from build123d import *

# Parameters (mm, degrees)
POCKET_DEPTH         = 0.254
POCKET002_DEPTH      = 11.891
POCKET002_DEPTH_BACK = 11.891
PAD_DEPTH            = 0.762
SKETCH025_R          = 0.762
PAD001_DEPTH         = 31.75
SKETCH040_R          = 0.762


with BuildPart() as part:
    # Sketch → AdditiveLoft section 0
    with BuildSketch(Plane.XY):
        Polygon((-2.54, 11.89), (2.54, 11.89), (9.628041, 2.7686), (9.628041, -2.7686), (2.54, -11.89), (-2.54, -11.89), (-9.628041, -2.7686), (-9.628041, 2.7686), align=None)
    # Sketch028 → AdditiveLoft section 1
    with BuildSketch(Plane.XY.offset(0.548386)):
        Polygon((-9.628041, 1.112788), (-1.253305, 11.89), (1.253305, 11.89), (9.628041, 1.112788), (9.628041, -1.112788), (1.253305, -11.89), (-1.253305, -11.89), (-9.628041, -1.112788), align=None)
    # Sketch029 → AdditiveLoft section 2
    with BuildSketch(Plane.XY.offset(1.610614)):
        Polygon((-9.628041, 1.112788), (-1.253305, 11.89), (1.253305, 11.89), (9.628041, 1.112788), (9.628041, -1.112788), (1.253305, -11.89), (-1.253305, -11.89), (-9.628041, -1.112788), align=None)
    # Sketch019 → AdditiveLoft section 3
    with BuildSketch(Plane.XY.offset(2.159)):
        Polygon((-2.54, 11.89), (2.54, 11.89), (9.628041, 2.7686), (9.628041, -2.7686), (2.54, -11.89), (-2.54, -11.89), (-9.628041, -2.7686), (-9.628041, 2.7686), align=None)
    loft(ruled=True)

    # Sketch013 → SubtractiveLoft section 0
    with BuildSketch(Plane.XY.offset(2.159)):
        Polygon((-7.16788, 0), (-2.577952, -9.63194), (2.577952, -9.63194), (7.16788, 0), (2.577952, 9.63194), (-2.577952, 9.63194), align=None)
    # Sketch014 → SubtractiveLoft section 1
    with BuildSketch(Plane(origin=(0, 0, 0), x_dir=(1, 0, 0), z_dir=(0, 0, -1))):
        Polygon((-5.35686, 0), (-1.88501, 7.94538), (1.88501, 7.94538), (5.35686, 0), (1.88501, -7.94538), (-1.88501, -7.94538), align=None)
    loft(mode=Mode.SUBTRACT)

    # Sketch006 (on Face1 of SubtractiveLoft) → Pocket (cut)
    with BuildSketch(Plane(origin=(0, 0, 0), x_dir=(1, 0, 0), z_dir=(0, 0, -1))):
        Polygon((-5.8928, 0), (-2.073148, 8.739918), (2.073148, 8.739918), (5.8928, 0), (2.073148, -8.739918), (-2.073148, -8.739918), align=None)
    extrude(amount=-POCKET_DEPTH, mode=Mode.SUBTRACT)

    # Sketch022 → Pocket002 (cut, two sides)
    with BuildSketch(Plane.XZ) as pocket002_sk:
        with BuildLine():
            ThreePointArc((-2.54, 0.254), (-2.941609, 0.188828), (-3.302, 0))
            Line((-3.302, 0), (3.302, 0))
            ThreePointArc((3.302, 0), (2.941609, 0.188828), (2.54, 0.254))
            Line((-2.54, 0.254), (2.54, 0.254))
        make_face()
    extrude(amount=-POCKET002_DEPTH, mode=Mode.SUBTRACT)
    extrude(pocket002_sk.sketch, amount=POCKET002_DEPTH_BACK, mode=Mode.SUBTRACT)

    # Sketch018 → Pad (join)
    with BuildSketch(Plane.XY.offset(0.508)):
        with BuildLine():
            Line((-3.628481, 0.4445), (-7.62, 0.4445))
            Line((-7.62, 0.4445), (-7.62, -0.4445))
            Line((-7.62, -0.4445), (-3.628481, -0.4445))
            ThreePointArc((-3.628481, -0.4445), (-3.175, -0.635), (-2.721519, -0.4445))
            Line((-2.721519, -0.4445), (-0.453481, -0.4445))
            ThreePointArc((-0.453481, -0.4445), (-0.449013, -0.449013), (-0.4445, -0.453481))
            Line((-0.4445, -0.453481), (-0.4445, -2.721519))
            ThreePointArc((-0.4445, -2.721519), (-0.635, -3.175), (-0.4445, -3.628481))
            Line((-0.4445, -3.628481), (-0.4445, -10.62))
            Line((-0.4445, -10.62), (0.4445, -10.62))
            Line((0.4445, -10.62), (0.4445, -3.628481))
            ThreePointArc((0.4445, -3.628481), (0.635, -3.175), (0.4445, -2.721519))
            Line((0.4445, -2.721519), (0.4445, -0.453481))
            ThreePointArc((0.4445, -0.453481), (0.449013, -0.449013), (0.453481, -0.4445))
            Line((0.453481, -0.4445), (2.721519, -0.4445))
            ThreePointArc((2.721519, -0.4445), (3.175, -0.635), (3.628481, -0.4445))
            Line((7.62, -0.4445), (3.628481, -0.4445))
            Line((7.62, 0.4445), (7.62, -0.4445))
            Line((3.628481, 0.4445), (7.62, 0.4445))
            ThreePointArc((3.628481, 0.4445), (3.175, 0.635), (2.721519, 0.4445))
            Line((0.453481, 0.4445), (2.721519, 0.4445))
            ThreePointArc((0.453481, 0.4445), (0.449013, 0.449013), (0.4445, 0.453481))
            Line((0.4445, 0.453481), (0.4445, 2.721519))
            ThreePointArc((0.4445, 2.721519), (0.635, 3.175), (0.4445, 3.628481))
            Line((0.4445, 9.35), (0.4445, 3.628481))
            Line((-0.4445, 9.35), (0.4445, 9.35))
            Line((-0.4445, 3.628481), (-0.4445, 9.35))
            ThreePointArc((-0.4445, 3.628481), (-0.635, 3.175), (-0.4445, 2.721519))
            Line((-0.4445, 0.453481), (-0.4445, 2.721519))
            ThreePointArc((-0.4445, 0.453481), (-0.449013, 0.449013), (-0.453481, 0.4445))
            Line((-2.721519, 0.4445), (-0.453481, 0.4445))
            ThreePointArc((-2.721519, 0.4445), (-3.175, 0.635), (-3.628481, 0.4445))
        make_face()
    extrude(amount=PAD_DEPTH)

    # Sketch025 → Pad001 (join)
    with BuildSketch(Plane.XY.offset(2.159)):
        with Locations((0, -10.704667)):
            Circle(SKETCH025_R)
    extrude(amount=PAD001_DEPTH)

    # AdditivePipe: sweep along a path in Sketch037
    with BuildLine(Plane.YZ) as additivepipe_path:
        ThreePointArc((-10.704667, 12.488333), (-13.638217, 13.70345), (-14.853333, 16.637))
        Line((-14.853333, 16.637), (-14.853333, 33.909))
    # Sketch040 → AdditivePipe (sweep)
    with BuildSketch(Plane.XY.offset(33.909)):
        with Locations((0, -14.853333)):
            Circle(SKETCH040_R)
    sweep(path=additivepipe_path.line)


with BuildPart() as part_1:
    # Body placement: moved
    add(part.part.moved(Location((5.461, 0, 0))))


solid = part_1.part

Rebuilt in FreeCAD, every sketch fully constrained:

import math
import FreeCAD as App
import Part
import Sketcher
Q = App.Units.Quantity

doc = App.newDocument("Part")
body = doc.addObject("PartDesign::Body", "Body")

sketch1 = body.newObject("Sketcher::SketchObject", "Sketch")
sketch1.AttachmentSupport = (doc.getObject("XY_Plane"), [""])
sketch1.MapMode = "FlatFace"
sketch1.addGeometry([
    Part.LineSegment(App.Vector(3, 12, 0), App.Vector(-3, 12, 0)),
    Part.LineSegment(App.Vector(-3, 12, 0), App.Vector(-10, 3, 0)),
    Part.LineSegment(App.Vector(-10, 3, 0), App.Vector(-10, -3, 0)),
    Part.LineSegment(App.Vector(-10, -3, 0), App.Vector(-3, -12, 0)),
    Part.LineSegment(App.Vector(-3, -12, 0), App.Vector(3, -12, 0)),
    Part.LineSegment(App.Vector(3, -12, 0), App.Vector(10, -3, 0)),
    Part.LineSegment(App.Vector(10, -3, 0), App.Vector(10, 3, 0)),
    Part.LineSegment(App.Vector(10, 3, 0), App.Vector(3, 12, 0)),
], False)
sketch1.addConstraint([
    Sketcher.Constraint("Coincident", 0, 2, 1, 1),
    Sketcher.Constraint("Coincident", 1, 2, 2, 1),
    Sketcher.Constraint("Coincident", 2, 2, 3, 1),
    Sketcher.Constraint("Coincident", 3, 2, 4, 1),
    Sketcher.Constraint("Coincident", 4, 2, 5, 1),
    Sketcher.Constraint("Coincident", 5, 2, 6, 1),
    Sketcher.Constraint("Coincident", 6, 2, 7, 1),
    Sketcher.Constraint("Coincident", 7, 2, 0, 1),
    Sketcher.Constraint("Horizontal", 0),
    Sketcher.Constraint("Vertical", 2),
    Sketcher.Constraint("Horizontal", 4),
    Sketcher.Constraint("Vertical", 6),
    Sketcher.Constraint("Symmetric", 0, 2, 4, 2, -1, 1),
    Sketcher.Constraint("Symmetric", 1, 2, 5, 2, -1, 1),
    Sketcher.Constraint("Parallel", 3, 7),
    Sketcher.Constraint("Horizontal", 2, 2, 5, 2),
    Sketcher.Constraint("Horizontal", 1, 2, 6, 2),
    Sketcher.Constraint("Vertical", 0, 2, 3, 2),
    Sketcher.Constraint("DistanceX", 0, 2, 0, 1, Q("0.2 in")),
    Sketcher.Constraint("DistanceY", 2, 2, 2, 1, Q("0.218 in")),
    Sketcher.Constraint("Angle", 1, Q("-127.85 deg")),
    Sketcher.Constraint("DistanceY", -1, 1, 0, 2, Q("11.89 mm")),
])

sketch2 = body.newObject("Sketcher::SketchObject", "Sketch001")
sketch2.AttachmentSupport = (doc.getObject("XY_Plane"), [""])
sketch2.MapMode = "FlatFace"
sketch2.AttachmentOffset = App.Placement(App.Vector(0, 0, 0.548386), App.Rotation())
sketch2.addGeometry([
    Part.LineSegment(App.Vector(-1.3, 11.9, 0), App.Vector(-9.6, 1.1, 0)),
    Part.LineSegment(App.Vector(-9.6, 1.1, 0), App.Vector(-9.6, -1.1, 0)),
    Part.LineSegment(App.Vector(-9.6, -1.1, 0), App.Vector(-1.3, -11.9, 0)),
    Part.LineSegment(App.Vector(-1.3, -11.9, 0), App.Vector(1.3, -11.9, 0)),
    Part.LineSegment(App.Vector(1.3, -11.9, 0), App.Vector(9.6, -1.1, 0)),
    Part.LineSegment(App.Vector(9.6, -1.1, 0), App.Vector(9.6, 1.1, 0)),
    Part.LineSegment(App.Vector(9.6, 1.1, 0), App.Vector(1.3, 11.9, 0)),
    Part.LineSegment(App.Vector(1.3, 11.9, 0), App.Vector(-1.3, 11.9, 0)),
], False)
sketch2.addConstraint([
    Sketcher.Constraint("Coincident", 0, 2, 1, 1),
    Sketcher.Constraint("Coincident", 1, 2, 2, 1),
    Sketcher.Constraint("Coincident", 2, 2, 3, 1),
    Sketcher.Constraint("Coincident", 3, 2, 4, 1),
    Sketcher.Constraint("Coincident", 4, 2, 5, 1),
    Sketcher.Constraint("Coincident", 5, 2, 6, 1),
    Sketcher.Constraint("Coincident", 6, 2, 7, 1),
    Sketcher.Constraint("Coincident", 7, 2, 0, 1),
    Sketcher.Constraint("Vertical", 1),
    Sketcher.Constraint("Horizontal", 3),
    Sketcher.Constraint("Vertical", 5),
    Sketcher.Constraint("Horizontal", 7),
    Sketcher.Constraint("Symmetric", 0, 2, 4, 2, -1, 1),
    Sketcher.Constraint("Symmetric", 2, 2, 6, 2, -1, 1),
    Sketcher.Constraint("Parallel", 0, 4),
    Sketcher.Constraint("Parallel", 2, 6),
    Sketcher.Constraint("Horizontal", 1, 2, 4, 2),
    Sketcher.Constraint("Vertical", 3, 2, 6, 2),
    Sketcher.Constraint("Angle", 0, Q("-127.849999 deg")),
    Sketcher.Constraint("DistanceX", 3, 1, 3, 2, Q("2.50661 mm")),
    Sketcher.Constraint("DistanceY", 2, 2, -1, 1, Q("11.89 mm")),
    Sketcher.Constraint("Distance", 0, Q("13.648608 mm")),
])

sketch3 = body.newObject("Sketcher::SketchObject", "Sketch002")
sketch3.AttachmentSupport = (doc.getObject("XY_Plane"), [""])
sketch3.MapMode = "FlatFace"
sketch3.AttachmentOffset = App.Placement(App.Vector(0, 0, 1.610614), App.Rotation())
sketch3.addGeometry([
    Part.LineSegment(App.Vector(-1.3, 11.9, 0), App.Vector(-9.6, 1.1, 0)),
    Part.LineSegment(App.Vector(-9.6, 1.1, 0), App.Vector(-9.6, -1.1, 0)),
    Part.LineSegment(App.Vector(-9.6, -1.1, 0), App.Vector(-1.3, -11.9, 0)),
    Part.LineSegment(App.Vector(-1.3, -11.9, 0), App.Vector(1.3, -11.9, 0)),
    Part.LineSegment(App.Vector(1.3, -11.9, 0), App.Vector(9.6, -1.1, 0)),
    Part.LineSegment(App.Vector(9.6, -1.1, 0), App.Vector(9.6, 1.1, 0)),
    Part.LineSegment(App.Vector(9.6, 1.1, 0), App.Vector(1.3, 11.9, 0)),
    Part.LineSegment(App.Vector(1.3, 11.9, 0), App.Vector(-1.3, 11.9, 0)),
], False)
sketch3.addConstraint([
    Sketcher.Constraint("Coincident", 0, 2, 1, 1),
    Sketcher.Constraint("Coincident", 1, 2, 2, 1),
    Sketcher.Constraint("Coincident", 2, 2, 3, 1),
    Sketcher.Constraint("Coincident", 3, 2, 4, 1),
    Sketcher.Constraint("Coincident", 4, 2, 5, 1),
    Sketcher.Constraint("Coincident", 5, 2, 6, 1),
    Sketcher.Constraint("Coincident", 6, 2, 7, 1),
    Sketcher.Constraint("Coincident", 7, 2, 0, 1),
    Sketcher.Constraint("Vertical", 1),
    Sketcher.Constraint("Horizontal", 3),
    Sketcher.Constraint("Vertical", 5),
    Sketcher.Constraint("Horizontal", 7),
    Sketcher.Constraint("Symmetric", 0, 2, 4, 2, -1, 1),
    Sketcher.Constraint("Symmetric", 2, 2, 6, 2, -1, 1),
    Sketcher.Constraint("Parallel", 0, 4),
    Sketcher.Constraint("Parallel", 2, 6),
    Sketcher.Constraint("Horizontal", 1, 2, 4, 2),
    Sketcher.Constraint("Vertical", 3, 2, 6, 2),
    Sketcher.Constraint("Angle", 0, Q("-127.849999 deg")),
    Sketcher.Constraint("DistanceX", 3, 1, 3, 2, Q("2.50661 mm")),
    Sketcher.Constraint("DistanceY", 2, 2, -1, 1, Q("11.89 mm")),
    Sketcher.Constraint("Distance", 0, Q("13.648608 mm")),
])

sketch4 = body.newObject("Sketcher::SketchObject", "Sketch003")
sketch4.AttachmentSupport = (doc.getObject("XY_Plane"), [""])
sketch4.MapMode = "FlatFace"
sketch4.AttachmentOffset = App.Placement(App.Vector(0, 0, 0.085 * 25.4), App.Rotation())
sketch4.addGeometry([
    Part.LineSegment(App.Vector(3, 12, 0), App.Vector(-3, 12, 0)),
    Part.LineSegment(App.Vector(-3, 12, 0), App.Vector(-10, 3, 0)),
    Part.LineSegment(App.Vector(-10, 3, 0), App.Vector(-10, -3, 0)),
    Part.LineSegment(App.Vector(-10, -3, 0), App.Vector(-3, -12, 0)),
    Part.LineSegment(App.Vector(-3, -12, 0), App.Vector(3, -12, 0)),
    Part.LineSegment(App.Vector(3, -12, 0), App.Vector(10, -3, 0)),
    Part.LineSegment(App.Vector(10, -3, 0), App.Vector(10, 3, 0)),
    Part.LineSegment(App.Vector(10, 3, 0), App.Vector(3, 12, 0)),
], False)
sketch4.addConstraint([
    Sketcher.Constraint("Coincident", 0, 2, 1, 1),
    Sketcher.Constraint("Coincident", 1, 2, 2, 1),
    Sketcher.Constraint("Coincident", 2, 2, 3, 1),
    Sketcher.Constraint("Coincident", 3, 2, 4, 1),
    Sketcher.Constraint("Coincident", 4, 2, 5, 1),
    Sketcher.Constraint("Coincident", 5, 2, 6, 1),
    Sketcher.Constraint("Coincident", 6, 2, 7, 1),
    Sketcher.Constraint("Coincident", 7, 2, 0, 1),
    Sketcher.Constraint("Horizontal", 0),
    Sketcher.Constraint("Vertical", 2),
    Sketcher.Constraint("Horizontal", 4),
    Sketcher.Constraint("Vertical", 6),
    Sketcher.Constraint("Symmetric", 0, 2, 4, 2, -1, 1),
    Sketcher.Constraint("Symmetric", 1, 2, 5, 2, -1, 1),
    Sketcher.Constraint("Parallel", 3, 7),
    Sketcher.Constraint("Horizontal", 2, 2, 5, 2),
    Sketcher.Constraint("Horizontal", 1, 2, 6, 2),
    Sketcher.Constraint("Vertical", 0, 2, 3, 2),
    Sketcher.Constraint("DistanceX", 0, 2, 0, 1, Q("0.2 in")),
    Sketcher.Constraint("DistanceY", 2, 2, 2, 1, Q("0.218 in")),
    Sketcher.Constraint("Angle", 1, Q("-127.85 deg")),
    Sketcher.Constraint("DistanceY", -1, 1, 0, 2, Q("11.89 mm")),
])

additiveloft = body.newObject("PartDesign::AdditiveLoft", "AdditiveLoft")
additiveloft.Profile = sketch1
additiveloft.Sections = [sketch2, sketch3, sketch4]
additiveloft.Ruled = True

sketch5 = body.newObject("Sketcher::SketchObject", "Sketch004")
sketch5.AttachmentSupport = (doc.getObject("XY_Plane"), [""])
sketch5.MapMode = "FlatFace"
sketch5.AttachmentOffset = App.Placement(App.Vector(0, 0, 0.085 * 25.4), App.Rotation())
sketch5.addGeometry([
    Part.LineSegment(App.Vector(-7, 0, 0), App.Vector(-3, -10, 0)),
    Part.LineSegment(App.Vector(-3, -10, 0), App.Vector(3, -10, 0)),
    Part.LineSegment(App.Vector(3, -10, 0), App.Vector(7, 0, 0)),
    Part.LineSegment(App.Vector(7, 0, 0), App.Vector(3, 10, 0)),
    Part.LineSegment(App.Vector(3, 10, 0), App.Vector(-3, 10, 0)),
    Part.LineSegment(App.Vector(-3, 10, 0), App.Vector(-7, 0, 0)),
], False)
sketch5.addConstraint([
    Sketcher.Constraint("Coincident", 0, 2, 1, 1),
    Sketcher.Constraint("Coincident", 1, 2, 2, 1),
    Sketcher.Constraint("Coincident", 2, 2, 3, 1),
    Sketcher.Constraint("Coincident", 3, 2, 4, 1),
    Sketcher.Constraint("Coincident", 4, 2, 5, 1),
    Sketcher.Constraint("Coincident", 5, 2, 0, 1),
    Sketcher.Constraint("Horizontal", 1),
    Sketcher.Constraint("Horizontal", 4),
    Sketcher.Constraint("Symmetric", 0, 2, 3, 2, -1, 1),
    Sketcher.Constraint("Symmetric", 2, 2, 5, 2, -1, 1),
    Sketcher.Constraint("PointOnObject", 2, 2, -1),
    Sketcher.Constraint("Parallel", 2, 5),
    Sketcher.Constraint("Vertical", 1, 2, 3, 2),
    Sketcher.Constraint("DistanceX", -1, 1, 2, 2, Q("0.2822 in")),
    Sketcher.Constraint("DistanceX", 1, 1, 1, 2, Q("5.155904 mm")),
    Sketcher.Constraint("DistanceY", 0, 2, -1, 1, Q("9.63194 mm")),
])

sketch6 = body.newObject("Sketcher::SketchObject", "Sketch005")
sketch6.AttachmentSupport = (doc.getObject("XY_Plane"), [""])
sketch6.MapMode = "FlatFace"
sketch6.addGeometry([
    Part.LineSegment(App.Vector(-1.9, -7.9, 0), App.Vector(-5.4, 0, 0)),
    Part.LineSegment(App.Vector(-5.4, 0, 0), App.Vector(-1.9, 7.9, 0)),
    Part.LineSegment(App.Vector(-1.9, 7.9, 0), App.Vector(1.9, 7.9, 0)),
    Part.LineSegment(App.Vector(1.9, 7.9, 0), App.Vector(5.4, 0, 0)),
    Part.LineSegment(App.Vector(5.4, 0, 0), App.Vector(1.9, -7.9, 0)),
    Part.LineSegment(App.Vector(1.9, -7.9, 0), App.Vector(-1.9, -7.9, 0)),
], False)
sketch6.addConstraint([
    Sketcher.Constraint("Coincident", 0, 2, 1, 1),
    Sketcher.Constraint("Coincident", 1, 2, 2, 1),
    Sketcher.Constraint("Coincident", 2, 2, 3, 1),
    Sketcher.Constraint("Coincident", 3, 2, 4, 1),
    Sketcher.Constraint("Coincident", 4, 2, 5, 1),
    Sketcher.Constraint("Coincident", 5, 2, 0, 1),
    Sketcher.Constraint("Horizontal", 2),
    Sketcher.Constraint("Horizontal", 5),
    Sketcher.Constraint("Symmetric", 0, 2, 3, 2, -1, 1),
    Sketcher.Constraint("Symmetric", 1, 2, 4, 2, -1, 1),
    Sketcher.Constraint("PointOnObject", 0, 2, -1),
    Sketcher.Constraint("Parallel", 0, 3),
    Sketcher.Constraint("Vertical", 2, 2, 4, 2),
    Sketcher.Constraint("DistanceX", 0, 2, -1, 1, Q("0.2109 in")),
    Sketcher.Constraint("Distance", 0, Q("8.670802 mm")),
    Sketcher.Constraint("DistanceX", 2, 1, 2, 2, Q("3.77002 mm")),
])

subtractiveloft = body.newObject("PartDesign::SubtractiveLoft", "SubtractiveLoft")
subtractiveloft.Profile = sketch5
subtractiveloft.Sections = [sketch6]

sketch7 = body.newObject("Sketcher::SketchObject", "Sketch006")
sketch7.AttachmentSupport = (doc.getObject("XY_Plane"), [""])
sketch7.MapMode = "FlatFace"
sketch7.addGeometry([
    Part.LineSegment(App.Vector(-2.1, -8.7, 0), App.Vector(-5.9, 0, 0)),
    Part.LineSegment(App.Vector(-5.9, 0, 0), App.Vector(-2.1, 8.7, 0)),
    Part.LineSegment(App.Vector(-2.1, 8.7, 0), App.Vector(2.1, 8.7, 0)),
    Part.LineSegment(App.Vector(2.1, 8.7, 0), App.Vector(5.9, 0, 0)),
    Part.LineSegment(App.Vector(5.9, 0, 0), App.Vector(2.1, -8.7, 0)),
    Part.LineSegment(App.Vector(2.1, -8.7, 0), App.Vector(-2.1, -8.7, 0)),
], False)
sketch7.addConstraint([
    Sketcher.Constraint("Coincident", 0, 2, 1, 1),
    Sketcher.Constraint("Coincident", 1, 2, 2, 1),
    Sketcher.Constraint("Coincident", 2, 2, 3, 1),
    Sketcher.Constraint("Coincident", 3, 2, 4, 1),
    Sketcher.Constraint("Coincident", 4, 2, 5, 1),
    Sketcher.Constraint("Coincident", 5, 2, 0, 1),
    Sketcher.Constraint("Horizontal", 2),
    Sketcher.Constraint("Horizontal", 5),
    Sketcher.Constraint("Symmetric", 0, 2, 3, 2, -1, 1),
    Sketcher.Constraint("Symmetric", 1, 2, 4, 2, -1, 1),
    Sketcher.Constraint("PointOnObject", 0, 2, -1),
    Sketcher.Constraint("Parallel", 0, 3),
    Sketcher.Constraint("Vertical", 2, 2, 4, 2),
    Sketcher.Constraint("DistanceX", 0, 2, -1, 1, Q("0.232 in")),
    Sketcher.Constraint("Distance", 0, Q("9.538129 mm")),
    Sketcher.Constraint("DistanceX", 2, 1, 2, 2, Q("4.146296 mm")),
])
pocket1 = body.newObject("PartDesign::Pocket", "Pocket")
pocket1.Profile = sketch7
pocket1.Length = Q("0.01 in")
pocket1.Reversed = True

sketch8 = body.newObject("Sketcher::SketchObject", "Sketch007")
sketch8.AttachmentSupport = (doc.getObject("XZ_Plane"), [""])
sketch8.MapMode = "FlatFace"
sketch8.addGeometry([
    Part.ArcOfCircle(Part.Circle(App.Vector(-2.5, -1, 0), App.Vector(0, 0, 1), 1.3), math.radians(90), math.radians(127)),
    Part.LineSegment(App.Vector(-3.3, 0, 0), App.Vector(3.3, 0, 0)),
    Part.ArcOfCircle(Part.Circle(App.Vector(2.5, -1, 0), App.Vector(0, 0, 1), 1.3), math.radians(53), math.radians(90)),
    Part.LineSegment(App.Vector(2.5, 0.3, 0), App.Vector(-2.5, 0.3, 0)),
], False)
sketch8.addConstraint([
    Sketcher.Constraint("Coincident", 0, 2, 1, 1),
    Sketcher.Constraint("Coincident", 1, 2, 2, 1),
    Sketcher.Constraint("Tangent", 2, 2, 3, 1),
    Sketcher.Constraint("Tangent", 3, 2, 0, 1),
    Sketcher.Constraint("Horizontal", 1),
    Sketcher.Constraint("Horizontal", 3),
    Sketcher.Constraint("Equal", 0, 2),
    Sketcher.Constraint("Symmetric", 0, 2, 1, 2, -1, 1),
    Sketcher.Constraint("Radius", 0, Q("0.0499999 in")),
    Sketcher.Constraint("DistanceX", 3, 2, 3, 1, Q("0.2 in")),
    Sketcher.Constraint("DistanceX", 1, 1, 1, 2, Q("0.26 in")),
])
pocket2 = body.newObject("PartDesign::Pocket", "Pocket001")
pocket2.Profile = sketch8
pocket2.Type = "ThroughAll"
pocket2.Midplane = True

sketch9 = body.newObject("Sketcher::SketchObject", "Sketch008")
sketch9.AttachmentSupport = (doc.getObject("XY_Plane"), [""])
sketch9.MapMode = "FlatFace"
sketch9.AttachmentOffset = App.Placement(App.Vector(0, 0, 0.02 * 25.4), App.Rotation())
sketch9.addGeometry([
    Part.LineSegment(App.Vector(-3.628, 0.445, 0), App.Vector(-7.62, 0.445, 0)),
    Part.LineSegment(App.Vector(-7.62, 0.445, 0), App.Vector(-7.62, -0.445, 0)),
    Part.LineSegment(App.Vector(-7.62, -0.445, 0), App.Vector(-3.628, -0.445, 0)),
    Part.ArcOfCircle(Part.Circle(App.Vector(-3.175, 0, 0), App.Vector(0, 0, 1), 0.635), math.radians(-136), math.radians(-44)),
    Part.LineSegment(App.Vector(-2.722, -0.445, 0), App.Vector(-0.453, -0.445, 0)),
    Part.ArcOfCircle(Part.Circle(App.Vector(-0.001, -0.001, 0), App.Vector(0, 0, 1), 0.634), math.radians(-135.57), math.radians(-134.43)),
    Part.LineSegment(App.Vector(-0.445, -0.453, 0), App.Vector(-0.445, -2.722, 0)),
    Part.ArcOfCircle(Part.Circle(App.Vector(0, -3.175, 0), App.Vector(0, 0, 1), 0.635), math.radians(134), math.radians(226)),
    Part.LineSegment(App.Vector(-0.445, -3.628, 0), App.Vector(-0.445, -10.62, 0)),
    Part.LineSegment(App.Vector(-0.445, -10.62, 0), App.Vector(0.445, -10.62, 0)),
    Part.LineSegment(App.Vector(0.445, -10.62, 0), App.Vector(0.445, -3.628, 0)),
    Part.ArcOfCircle(Part.Circle(App.Vector(0, -3.175, 0), App.Vector(0, 0, 1), 0.635), math.radians(-46), math.radians(46)),
    Part.LineSegment(App.Vector(0.445, -2.722, 0), App.Vector(0.445, -0.453, 0)),
    Part.ArcOfCircle(Part.Circle(App.Vector(0.001, -0.001, 0), App.Vector(0, 0, 1), 0.634), math.radians(-45.57), math.radians(-44.43)),
    Part.LineSegment(App.Vector(0.453, -0.445, 0), App.Vector(2.722, -0.445, 0)),
    Part.ArcOfCircle(Part.Circle(App.Vector(3.175, 0, 0), App.Vector(0, 0, 1), 0.635), math.radians(-136), math.radians(-44)),
    Part.LineSegment(App.Vector(3.628, -0.445, 0), App.Vector(7.62, -0.445, 0)),
    Part.LineSegment(App.Vector(7.62, -0.445, 0), App.Vector(7.62, 0.445, 0)),
    Part.LineSegment(App.Vector(7.62, 0.445, 0), App.Vector(3.628, 0.445, 0)),
    Part.ArcOfCircle(Part.Circle(App.Vector(3.175, 0, 0), App.Vector(0, 0, 1), 0.635), math.radians(44), math.radians(136)),
    Part.LineSegment(App.Vector(2.722, 0.445, 0), App.Vector(0.453, 0.445, 0)),
    Part.ArcOfCircle(Part.Circle(App.Vector(0.001, 0.001, 0), App.Vector(0, 0, 1), 0.634), math.radians(44.43), math.radians(45.57)),
    Part.LineSegment(App.Vector(0.445, 0.453, 0), App.Vector(0.445, 2.722, 0)),
    Part.ArcOfCircle(Part.Circle(App.Vector(0, 3.175, 0), App.Vector(0, 0, 1), 0.635), math.radians(-46), math.radians(46)),
    Part.LineSegment(App.Vector(0.445, 3.628, 0), App.Vector(0.445, 9.35, 0)),
    Part.LineSegment(App.Vector(0.445, 9.35, 0), App.Vector(-0.445, 9.35, 0)),
    Part.LineSegment(App.Vector(-0.445, 9.35, 0), App.Vector(-0.445, 3.628, 0)),
    Part.ArcOfCircle(Part.Circle(App.Vector(0, 3.175, 0), App.Vector(0, 0, 1), 0.635), math.radians(134), math.radians(226)),
    Part.LineSegment(App.Vector(-0.445, 2.722, 0), App.Vector(-0.445, 0.453, 0)),
    Part.ArcOfCircle(Part.Circle(App.Vector(-0.001, 0.001, 0), App.Vector(0, 0, 1), 0.634), math.radians(134.43), math.radians(135.57)),
    Part.LineSegment(App.Vector(-0.453, 0.445, 0), App.Vector(-2.722, 0.445, 0)),
    Part.ArcOfCircle(Part.Circle(App.Vector(-3.175, 0, 0), App.Vector(0, 0, 1), 0.635), math.radians(44), math.radians(136)),
], False)
sketch9.addConstraint([
    Sketcher.Constraint("Coincident", 0, 2, 1, 1),
    Sketcher.Constraint("Coincident", 1, 2, 2, 1),
    Sketcher.Constraint("Coincident", 2, 2, 3, 1),
    Sketcher.Constraint("Coincident", 3, 2, 4, 1),
    Sketcher.Constraint("Coincident", 4, 2, 5, 1),
    Sketcher.Constraint("Coincident", 5, 2, 6, 1),
    Sketcher.Constraint("Coincident", 6, 2, 7, 1),
    Sketcher.Constraint("Coincident", 7, 2, 8, 1),
    Sketcher.Constraint("Coincident", 8, 2, 9, 1),
    Sketcher.Constraint("Coincident", 9, 2, 10, 1),
    Sketcher.Constraint("Coincident", 10, 2, 11, 1),
    Sketcher.Constraint("Coincident", 11, 2, 12, 1),
    Sketcher.Constraint("Coincident", 12, 2, 13, 1),
    Sketcher.Constraint("Coincident", 13, 2, 14, 1),
    Sketcher.Constraint("Coincident", 14, 2, 15, 1),
    Sketcher.Constraint("Coincident", 15, 2, 16, 1),
    Sketcher.Constraint("Coincident", 16, 2, 17, 1),
    Sketcher.Constraint("Coincident", 17, 2, 18, 1),
    Sketcher.Constraint("Coincident", 18, 2, 19, 1),
    Sketcher.Constraint("Coincident", 19, 2, 20, 1),
    Sketcher.Constraint("Coincident", 20, 2, 21, 1),
    Sketcher.Constraint("Coincident", 21, 2, 22, 1),
    Sketcher.Constraint("Coincident", 22, 2, 23, 1),
    Sketcher.Constraint("Coincident", 23, 2, 24, 1),
    Sketcher.Constraint("Coincident", 24, 2, 25, 1),
    Sketcher.Constraint("Coincident", 25, 2, 26, 1),
    Sketcher.Constraint("Coincident", 26, 2, 27, 1),
    Sketcher.Constraint("Coincident", 27, 2, 28, 1),
    Sketcher.Constraint("Coincident", 28, 2, 29, 1),
    Sketcher.Constraint("Coincident", 29, 2, 30, 1),
    Sketcher.Constraint("Coincident", 30, 2, 31, 1),
    Sketcher.Constraint("Coincident", 31, 2, 0, 1),
    Sketcher.Constraint("Horizontal", 0),
    Sketcher.Constraint("Vertical", 1),
    Sketcher.Constraint("Horizontal", 2),
    Sketcher.Constraint("Horizontal", 4),
    Sketcher.Constraint("Vertical", 6),
    Sketcher.Constraint("Vertical", 8),
    Sketcher.Constraint("Horizontal", 9),
    Sketcher.Constraint("Vertical", 10),
    Sketcher.Constraint("Vertical", 12),
    Sketcher.Constraint("Horizontal", 14),
    Sketcher.Constraint("Horizontal", 16),
    Sketcher.Constraint("Vertical", 17),
    Sketcher.Constraint("Horizontal", 18),
    Sketcher.Constraint("Horizontal", 20),
    Sketcher.Constraint("Vertical", 22),
    Sketcher.Constraint("Vertical", 24),
    Sketcher.Constraint("Horizontal", 25),
    Sketcher.Constraint("Vertical", 26),
    Sketcher.Constraint("Vertical", 28),
    Sketcher.Constraint("Horizontal", 30),
    Sketcher.Constraint("Coincident", 11, 3, 7, 3),
    Sketcher.Constraint("Coincident", 19, 3, 15, 3),
    Sketcher.Constraint("Coincident", 27, 3, 23, 3),
    Sketcher.Constraint("Coincident", 31, 3, 3, 3),
    Sketcher.Constraint("Equal", 3, 7),
    Sketcher.Constraint("Equal", 7, 11),
    Sketcher.Constraint("Equal", 5, 13),
    Sketcher.Constraint("Equal", 11, 15),
    Sketcher.Constraint("Equal", 15, 19),
    Sketcher.Constraint("Equal", 13, 21),
    Sketcher.Constraint("Equal", 19, 23),
    Sketcher.Constraint("Equal", 23, 27),
    Sketcher.Constraint("Equal", 21, 29),
    Sketcher.Constraint("Equal", 27, 31),
    Sketcher.Constraint("Symmetric", 3, 3, 15, 3, -1, 1),
    Sketcher.Constraint("Symmetric", 5, 3, 21, 3, -1, 1),
    Sketcher.Constraint("Symmetric", 7, 3, 23, 3, -1, 1),
    Sketcher.Constraint("Symmetric", 13, 3, 29, 3, -1, 1),
    Sketcher.Constraint("Symmetric", 0, 2, 16, 2, -1, 1),
    Sketcher.Constraint("Symmetric", 5, 3, 13, 3, -2),
    Sketcher.Constraint("Symmetric", 7, 2, 10, 2, -2),
    Sketcher.Constraint("Symmetric", 3, 2, 14, 2, -2),
    Sketcher.Constraint("Horizontal", 2, 2, 3, 2),
    Sketcher.Constraint("Horizontal", 6, 2, 11, 2),
    Sketcher.Constraint("Horizontal", 14, 2, 15, 2),
    Sketcher.Constraint("Horizontal", 0, 2, 17, 2),
    Sketcher.Constraint("Horizontal", 18, 2, 19, 2),
    Sketcher.Constraint("Horizontal", 23, 2, 26, 2),
    Sketcher.Constraint("Horizontal", 22, 2, 27, 2),
    Sketcher.Constraint("Horizontal", 20, 2, 29, 2),
    Sketcher.Constraint("Vertical", 6, 2, 7, 2),
    Sketcher.Constraint("Vertical", 12, 2, 21, 2),
    Sketcher.Constraint("Vertical", 22, 2, 23, 2),
    Sketcher.Constraint("Equal", 25, 1),
    Sketcher.Constraint("Equal", 30, 6),
    Sketcher.Constraint("Radius", 3, Q("0.025 in")),
    Sketcher.Constraint("DistanceX", 0, 2, -1, 1, Q("0.3 in")),
    Sketcher.Constraint("DistanceX", 9, 1, 9, 2, Q("0.035 in")),
    Sketcher.Constraint("DistanceX", 3, 3, 15, 3, Q("0.25 in")),
    Sketcher.Constraint("DistanceY", 7, 3, -1, 1, Q("0.125 in")),
    Sketcher.Constraint("DistanceY", 7, 2, 5, 2, Q("0.125 in")),
    Sketcher.Constraint("Radius", 5, Q("0.633728 mm")),
    Sketcher.Constraint("DistanceY", 8, 2, 8, 1, Q("6.991519 mm")),
    Sketcher.Constraint("DistanceY", 24, 1, 24, 2, Q("5.721519 mm")),
])
pad1 = body.newObject("PartDesign::Pad", "Pad")
pad1.Profile = sketch9
pad1.Length = Q("0.03 in")

sketch10 = body.newObject("Sketcher::SketchObject", "Sketch009")
sketch10.AttachmentSupport = (doc.getObject("XY_Plane"), [""])
sketch10.MapMode = "FlatFace"
sketch10.AttachmentOffset = App.Placement(App.Vector(0, 0, 0.085 * 25.4), App.Rotation())
sketch10.addGeometry(Part.Circle(App.Vector(0, -10.7, 0), App.Vector(0, 0, 1), 0.8), False)
sketch10.addConstraint([
    Sketcher.Constraint("PointOnObject", 0, 3, -2),
    Sketcher.Constraint("Diameter", 0, Q("0.06 in")),
    Sketcher.Constraint("DistanceY", 0, 3, -1, 1, Q("10.704667 mm")),
])
pad2 = body.newObject("PartDesign::Pad", "Pad001")
pad2.Profile = sketch10
pad2.Length = Q("1.25 in")

sketch11 = body.newObject("Sketcher::SketchObject", "Sketch010")
sketch11.AttachmentSupport = (doc.getObject("XY_Plane"), [""])
sketch11.MapMode = "FlatFace"
sketch11.AttachmentOffset = App.Placement(App.Vector(0, 0, 1.335 * 25.4), App.Rotation())
sketch11.addGeometry(Part.Circle(App.Vector(0, -14.9, 0), App.Vector(0, 0, 1), 0.8), False)
sketch11.addConstraint([
    Sketcher.Constraint("PointOnObject", 0, 3, -2),
    Sketcher.Constraint("Diameter", 0, Q("0.06 in")),
    Sketcher.Constraint("DistanceY", 0, 3, -1, 1, Q("14.853333 mm")),
])

sketch12 = body.newObject("Sketcher::SketchObject", "Sketch011")
sketch12.AttachmentSupport = (doc.getObject("YZ_Plane"), [""])
sketch12.MapMode = "FlatFace"
sketch12.addGeometry([
    Part.ArcOfCircle(Part.Circle(App.Vector(-10.7, 16.6, 0), App.Vector(0, 0, 1), 4.1), math.radians(-180), math.radians(-90)),
    Part.LineSegment(App.Vector(-14.9, 16.6, 0), App.Vector(-14.9, 33.9, 0)),
], False)
sketch12.addConstraint([
    Sketcher.Constraint("Tangent", 0, 1, 1, 1),
    Sketcher.Constraint("Vertical", 1),
    Sketcher.Constraint("DistanceY", 1, 1, 1, 2, Q("0.68 in")),
    Sketcher.Constraint("DistanceY", -1, 1, 0, 3, Q("0.655 in")),
    Sketcher.Constraint("Radius", 0, Q("4.148667 mm")),
    Sketcher.Constraint("DistanceX", 0, 3, -1, 1, Q("10.704666 mm")),
    Sketcher.Constraint("DistanceX", 0, 2, -1, 1, Q("10.704667 mm")),
])
doc.recompute()

additivepipe = body.newObject("PartDesign::AdditivePipe", "AdditivePipe")
additivepipe.Profile = sketch11
additivepipe.Spine = (sketch12, ["Edge1", "Edge2"])
body2 = doc.addObject("PartDesign::Body", "Body001")
doc.recompute()

body.Placement = App.Placement(App.Vector(5.461, 0, 0), App.Rotation(App.Vector(0, 0, 1), 0))
boolean = body2.newObject("PartDesign::Boolean", "Boolean")
boolean.Type = "Fuse"
boolean.addObjects([body])

doc.recompute()
